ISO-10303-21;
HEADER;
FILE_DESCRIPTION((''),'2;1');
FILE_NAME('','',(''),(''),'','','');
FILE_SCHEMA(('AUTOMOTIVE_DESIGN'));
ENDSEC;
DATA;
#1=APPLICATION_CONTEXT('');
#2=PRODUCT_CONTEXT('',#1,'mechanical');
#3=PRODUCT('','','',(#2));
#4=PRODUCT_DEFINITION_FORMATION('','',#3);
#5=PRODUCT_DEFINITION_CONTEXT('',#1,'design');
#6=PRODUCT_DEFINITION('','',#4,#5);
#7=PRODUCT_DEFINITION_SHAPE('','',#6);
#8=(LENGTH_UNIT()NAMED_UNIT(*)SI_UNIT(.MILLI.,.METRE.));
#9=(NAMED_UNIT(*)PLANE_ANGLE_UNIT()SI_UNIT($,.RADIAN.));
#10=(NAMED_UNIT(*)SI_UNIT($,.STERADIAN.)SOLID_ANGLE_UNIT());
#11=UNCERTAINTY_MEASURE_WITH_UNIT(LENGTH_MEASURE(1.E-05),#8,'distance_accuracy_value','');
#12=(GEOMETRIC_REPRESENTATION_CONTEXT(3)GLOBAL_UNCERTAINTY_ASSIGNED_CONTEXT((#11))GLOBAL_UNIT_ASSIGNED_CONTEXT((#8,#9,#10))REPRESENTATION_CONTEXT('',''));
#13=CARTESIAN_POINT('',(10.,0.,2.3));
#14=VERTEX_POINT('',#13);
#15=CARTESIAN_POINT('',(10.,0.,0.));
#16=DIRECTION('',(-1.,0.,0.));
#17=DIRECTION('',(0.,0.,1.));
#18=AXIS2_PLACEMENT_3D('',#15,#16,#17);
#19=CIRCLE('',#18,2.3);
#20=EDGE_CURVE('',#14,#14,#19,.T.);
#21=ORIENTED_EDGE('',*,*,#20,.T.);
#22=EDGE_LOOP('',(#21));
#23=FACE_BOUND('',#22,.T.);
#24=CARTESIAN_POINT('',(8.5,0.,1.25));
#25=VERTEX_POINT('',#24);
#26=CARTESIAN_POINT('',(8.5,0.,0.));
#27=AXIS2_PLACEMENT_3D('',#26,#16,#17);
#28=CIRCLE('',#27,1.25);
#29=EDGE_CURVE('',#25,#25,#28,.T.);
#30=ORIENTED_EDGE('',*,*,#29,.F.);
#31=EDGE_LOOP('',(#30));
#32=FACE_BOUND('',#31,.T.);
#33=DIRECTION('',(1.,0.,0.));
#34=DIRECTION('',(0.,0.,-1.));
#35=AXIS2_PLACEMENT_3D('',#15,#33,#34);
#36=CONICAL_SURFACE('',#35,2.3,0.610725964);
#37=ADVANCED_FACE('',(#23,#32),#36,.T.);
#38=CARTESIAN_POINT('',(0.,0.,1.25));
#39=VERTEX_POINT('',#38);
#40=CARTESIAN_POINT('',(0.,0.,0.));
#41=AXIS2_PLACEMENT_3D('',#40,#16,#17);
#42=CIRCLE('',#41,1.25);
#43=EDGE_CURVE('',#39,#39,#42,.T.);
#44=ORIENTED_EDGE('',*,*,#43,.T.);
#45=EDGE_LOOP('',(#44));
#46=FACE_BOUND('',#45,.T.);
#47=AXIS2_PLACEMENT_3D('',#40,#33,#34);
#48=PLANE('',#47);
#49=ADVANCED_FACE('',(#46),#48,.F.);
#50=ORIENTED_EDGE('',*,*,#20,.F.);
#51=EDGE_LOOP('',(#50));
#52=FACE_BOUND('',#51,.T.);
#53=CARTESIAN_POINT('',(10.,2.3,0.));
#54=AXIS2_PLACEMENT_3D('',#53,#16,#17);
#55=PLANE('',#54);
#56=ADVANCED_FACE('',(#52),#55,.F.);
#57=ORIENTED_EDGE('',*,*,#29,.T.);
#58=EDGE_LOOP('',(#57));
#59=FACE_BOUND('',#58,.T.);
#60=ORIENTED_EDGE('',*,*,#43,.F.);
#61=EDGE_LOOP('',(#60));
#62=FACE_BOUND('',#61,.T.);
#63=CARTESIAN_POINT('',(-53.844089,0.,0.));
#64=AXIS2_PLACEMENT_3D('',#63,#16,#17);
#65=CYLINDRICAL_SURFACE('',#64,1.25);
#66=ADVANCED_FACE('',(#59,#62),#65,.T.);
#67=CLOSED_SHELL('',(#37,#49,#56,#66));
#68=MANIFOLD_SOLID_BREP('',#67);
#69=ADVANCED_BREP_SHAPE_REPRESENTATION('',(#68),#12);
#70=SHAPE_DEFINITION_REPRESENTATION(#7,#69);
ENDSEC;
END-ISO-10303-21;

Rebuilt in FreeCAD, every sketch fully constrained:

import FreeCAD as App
import Part
import Sketcher
Q = App.Units.Quantity

doc = App.newDocument("Part")
body = doc.addObject("PartDesign::Body", "Body")

sketch1 = body.newObject("Sketcher::SketchObject", "Sketch")
sketch1.AttachmentSupport = (doc.getObject("XY_Plane"), [""])
sketch1.MapMode = "FlatFace"
sketch1.addGeometry([
    Part.LineSegment(App.Vector(0, 1.2, 0), App.Vector(0, 0, 0)),
    Part.LineSegment(App.Vector(0, 0, 0), App.Vector(10, 0, 0)),
    Part.LineSegment(App.Vector(10, 0, 0), App.Vector(10, 2.3, 0)),
    Part.LineSegment(App.Vector(10, 2.3, 0), App.Vector(8.5, 1.2, 0)),
    Part.LineSegment(App.Vector(8.5, 1.2, 0), App.Vector(0, 1.2, 0)),
], False)
sketch1.addConstraint([
    Sketcher.Constraint("Coincident", 0, 2, 1, 1),
    Sketcher.Constraint("Coincident", 1, 2, 2, 1),
    Sketcher.Constraint("Coincident", 2, 2, 3, 1),
    Sketcher.Constraint("Coincident", 3, 2, 4, 1),
    Sketcher.Constraint("Coincident", 4, 2, 0, 1),
    Sketcher.Constraint("Vertical", 0),
    Sketcher.Constraint("Horizontal", 1),
    Sketcher.Constraint("Vertical", 2),
    Sketcher.Constraint("Horizontal", 4),
    Sketcher.Constraint("Coincident", 0, 2, -1, 1),
    Sketcher.Constraint("DistanceX", 1, 1, 1, 2, Q("10 mm")),
    Sketcher.Constraint("DistanceX", 4, 2, 4, 1, Q("8.5 mm")),
    Sketcher.Constraint("DistanceY", 2, 1, 2, 2, Q("2.3 mm")),
    Sketcher.Constraint("DistanceY", 0, 2, 0, 1, Q("1.25 mm")),
])
revolution = body.newObject("PartDesign::Revolution", "Revolution")
revolution.Profile = sketch1
revolution.ReferenceAxis = (sketch1, ["H_Axis"])
revolution.Angle = 360

doc.recompute()
